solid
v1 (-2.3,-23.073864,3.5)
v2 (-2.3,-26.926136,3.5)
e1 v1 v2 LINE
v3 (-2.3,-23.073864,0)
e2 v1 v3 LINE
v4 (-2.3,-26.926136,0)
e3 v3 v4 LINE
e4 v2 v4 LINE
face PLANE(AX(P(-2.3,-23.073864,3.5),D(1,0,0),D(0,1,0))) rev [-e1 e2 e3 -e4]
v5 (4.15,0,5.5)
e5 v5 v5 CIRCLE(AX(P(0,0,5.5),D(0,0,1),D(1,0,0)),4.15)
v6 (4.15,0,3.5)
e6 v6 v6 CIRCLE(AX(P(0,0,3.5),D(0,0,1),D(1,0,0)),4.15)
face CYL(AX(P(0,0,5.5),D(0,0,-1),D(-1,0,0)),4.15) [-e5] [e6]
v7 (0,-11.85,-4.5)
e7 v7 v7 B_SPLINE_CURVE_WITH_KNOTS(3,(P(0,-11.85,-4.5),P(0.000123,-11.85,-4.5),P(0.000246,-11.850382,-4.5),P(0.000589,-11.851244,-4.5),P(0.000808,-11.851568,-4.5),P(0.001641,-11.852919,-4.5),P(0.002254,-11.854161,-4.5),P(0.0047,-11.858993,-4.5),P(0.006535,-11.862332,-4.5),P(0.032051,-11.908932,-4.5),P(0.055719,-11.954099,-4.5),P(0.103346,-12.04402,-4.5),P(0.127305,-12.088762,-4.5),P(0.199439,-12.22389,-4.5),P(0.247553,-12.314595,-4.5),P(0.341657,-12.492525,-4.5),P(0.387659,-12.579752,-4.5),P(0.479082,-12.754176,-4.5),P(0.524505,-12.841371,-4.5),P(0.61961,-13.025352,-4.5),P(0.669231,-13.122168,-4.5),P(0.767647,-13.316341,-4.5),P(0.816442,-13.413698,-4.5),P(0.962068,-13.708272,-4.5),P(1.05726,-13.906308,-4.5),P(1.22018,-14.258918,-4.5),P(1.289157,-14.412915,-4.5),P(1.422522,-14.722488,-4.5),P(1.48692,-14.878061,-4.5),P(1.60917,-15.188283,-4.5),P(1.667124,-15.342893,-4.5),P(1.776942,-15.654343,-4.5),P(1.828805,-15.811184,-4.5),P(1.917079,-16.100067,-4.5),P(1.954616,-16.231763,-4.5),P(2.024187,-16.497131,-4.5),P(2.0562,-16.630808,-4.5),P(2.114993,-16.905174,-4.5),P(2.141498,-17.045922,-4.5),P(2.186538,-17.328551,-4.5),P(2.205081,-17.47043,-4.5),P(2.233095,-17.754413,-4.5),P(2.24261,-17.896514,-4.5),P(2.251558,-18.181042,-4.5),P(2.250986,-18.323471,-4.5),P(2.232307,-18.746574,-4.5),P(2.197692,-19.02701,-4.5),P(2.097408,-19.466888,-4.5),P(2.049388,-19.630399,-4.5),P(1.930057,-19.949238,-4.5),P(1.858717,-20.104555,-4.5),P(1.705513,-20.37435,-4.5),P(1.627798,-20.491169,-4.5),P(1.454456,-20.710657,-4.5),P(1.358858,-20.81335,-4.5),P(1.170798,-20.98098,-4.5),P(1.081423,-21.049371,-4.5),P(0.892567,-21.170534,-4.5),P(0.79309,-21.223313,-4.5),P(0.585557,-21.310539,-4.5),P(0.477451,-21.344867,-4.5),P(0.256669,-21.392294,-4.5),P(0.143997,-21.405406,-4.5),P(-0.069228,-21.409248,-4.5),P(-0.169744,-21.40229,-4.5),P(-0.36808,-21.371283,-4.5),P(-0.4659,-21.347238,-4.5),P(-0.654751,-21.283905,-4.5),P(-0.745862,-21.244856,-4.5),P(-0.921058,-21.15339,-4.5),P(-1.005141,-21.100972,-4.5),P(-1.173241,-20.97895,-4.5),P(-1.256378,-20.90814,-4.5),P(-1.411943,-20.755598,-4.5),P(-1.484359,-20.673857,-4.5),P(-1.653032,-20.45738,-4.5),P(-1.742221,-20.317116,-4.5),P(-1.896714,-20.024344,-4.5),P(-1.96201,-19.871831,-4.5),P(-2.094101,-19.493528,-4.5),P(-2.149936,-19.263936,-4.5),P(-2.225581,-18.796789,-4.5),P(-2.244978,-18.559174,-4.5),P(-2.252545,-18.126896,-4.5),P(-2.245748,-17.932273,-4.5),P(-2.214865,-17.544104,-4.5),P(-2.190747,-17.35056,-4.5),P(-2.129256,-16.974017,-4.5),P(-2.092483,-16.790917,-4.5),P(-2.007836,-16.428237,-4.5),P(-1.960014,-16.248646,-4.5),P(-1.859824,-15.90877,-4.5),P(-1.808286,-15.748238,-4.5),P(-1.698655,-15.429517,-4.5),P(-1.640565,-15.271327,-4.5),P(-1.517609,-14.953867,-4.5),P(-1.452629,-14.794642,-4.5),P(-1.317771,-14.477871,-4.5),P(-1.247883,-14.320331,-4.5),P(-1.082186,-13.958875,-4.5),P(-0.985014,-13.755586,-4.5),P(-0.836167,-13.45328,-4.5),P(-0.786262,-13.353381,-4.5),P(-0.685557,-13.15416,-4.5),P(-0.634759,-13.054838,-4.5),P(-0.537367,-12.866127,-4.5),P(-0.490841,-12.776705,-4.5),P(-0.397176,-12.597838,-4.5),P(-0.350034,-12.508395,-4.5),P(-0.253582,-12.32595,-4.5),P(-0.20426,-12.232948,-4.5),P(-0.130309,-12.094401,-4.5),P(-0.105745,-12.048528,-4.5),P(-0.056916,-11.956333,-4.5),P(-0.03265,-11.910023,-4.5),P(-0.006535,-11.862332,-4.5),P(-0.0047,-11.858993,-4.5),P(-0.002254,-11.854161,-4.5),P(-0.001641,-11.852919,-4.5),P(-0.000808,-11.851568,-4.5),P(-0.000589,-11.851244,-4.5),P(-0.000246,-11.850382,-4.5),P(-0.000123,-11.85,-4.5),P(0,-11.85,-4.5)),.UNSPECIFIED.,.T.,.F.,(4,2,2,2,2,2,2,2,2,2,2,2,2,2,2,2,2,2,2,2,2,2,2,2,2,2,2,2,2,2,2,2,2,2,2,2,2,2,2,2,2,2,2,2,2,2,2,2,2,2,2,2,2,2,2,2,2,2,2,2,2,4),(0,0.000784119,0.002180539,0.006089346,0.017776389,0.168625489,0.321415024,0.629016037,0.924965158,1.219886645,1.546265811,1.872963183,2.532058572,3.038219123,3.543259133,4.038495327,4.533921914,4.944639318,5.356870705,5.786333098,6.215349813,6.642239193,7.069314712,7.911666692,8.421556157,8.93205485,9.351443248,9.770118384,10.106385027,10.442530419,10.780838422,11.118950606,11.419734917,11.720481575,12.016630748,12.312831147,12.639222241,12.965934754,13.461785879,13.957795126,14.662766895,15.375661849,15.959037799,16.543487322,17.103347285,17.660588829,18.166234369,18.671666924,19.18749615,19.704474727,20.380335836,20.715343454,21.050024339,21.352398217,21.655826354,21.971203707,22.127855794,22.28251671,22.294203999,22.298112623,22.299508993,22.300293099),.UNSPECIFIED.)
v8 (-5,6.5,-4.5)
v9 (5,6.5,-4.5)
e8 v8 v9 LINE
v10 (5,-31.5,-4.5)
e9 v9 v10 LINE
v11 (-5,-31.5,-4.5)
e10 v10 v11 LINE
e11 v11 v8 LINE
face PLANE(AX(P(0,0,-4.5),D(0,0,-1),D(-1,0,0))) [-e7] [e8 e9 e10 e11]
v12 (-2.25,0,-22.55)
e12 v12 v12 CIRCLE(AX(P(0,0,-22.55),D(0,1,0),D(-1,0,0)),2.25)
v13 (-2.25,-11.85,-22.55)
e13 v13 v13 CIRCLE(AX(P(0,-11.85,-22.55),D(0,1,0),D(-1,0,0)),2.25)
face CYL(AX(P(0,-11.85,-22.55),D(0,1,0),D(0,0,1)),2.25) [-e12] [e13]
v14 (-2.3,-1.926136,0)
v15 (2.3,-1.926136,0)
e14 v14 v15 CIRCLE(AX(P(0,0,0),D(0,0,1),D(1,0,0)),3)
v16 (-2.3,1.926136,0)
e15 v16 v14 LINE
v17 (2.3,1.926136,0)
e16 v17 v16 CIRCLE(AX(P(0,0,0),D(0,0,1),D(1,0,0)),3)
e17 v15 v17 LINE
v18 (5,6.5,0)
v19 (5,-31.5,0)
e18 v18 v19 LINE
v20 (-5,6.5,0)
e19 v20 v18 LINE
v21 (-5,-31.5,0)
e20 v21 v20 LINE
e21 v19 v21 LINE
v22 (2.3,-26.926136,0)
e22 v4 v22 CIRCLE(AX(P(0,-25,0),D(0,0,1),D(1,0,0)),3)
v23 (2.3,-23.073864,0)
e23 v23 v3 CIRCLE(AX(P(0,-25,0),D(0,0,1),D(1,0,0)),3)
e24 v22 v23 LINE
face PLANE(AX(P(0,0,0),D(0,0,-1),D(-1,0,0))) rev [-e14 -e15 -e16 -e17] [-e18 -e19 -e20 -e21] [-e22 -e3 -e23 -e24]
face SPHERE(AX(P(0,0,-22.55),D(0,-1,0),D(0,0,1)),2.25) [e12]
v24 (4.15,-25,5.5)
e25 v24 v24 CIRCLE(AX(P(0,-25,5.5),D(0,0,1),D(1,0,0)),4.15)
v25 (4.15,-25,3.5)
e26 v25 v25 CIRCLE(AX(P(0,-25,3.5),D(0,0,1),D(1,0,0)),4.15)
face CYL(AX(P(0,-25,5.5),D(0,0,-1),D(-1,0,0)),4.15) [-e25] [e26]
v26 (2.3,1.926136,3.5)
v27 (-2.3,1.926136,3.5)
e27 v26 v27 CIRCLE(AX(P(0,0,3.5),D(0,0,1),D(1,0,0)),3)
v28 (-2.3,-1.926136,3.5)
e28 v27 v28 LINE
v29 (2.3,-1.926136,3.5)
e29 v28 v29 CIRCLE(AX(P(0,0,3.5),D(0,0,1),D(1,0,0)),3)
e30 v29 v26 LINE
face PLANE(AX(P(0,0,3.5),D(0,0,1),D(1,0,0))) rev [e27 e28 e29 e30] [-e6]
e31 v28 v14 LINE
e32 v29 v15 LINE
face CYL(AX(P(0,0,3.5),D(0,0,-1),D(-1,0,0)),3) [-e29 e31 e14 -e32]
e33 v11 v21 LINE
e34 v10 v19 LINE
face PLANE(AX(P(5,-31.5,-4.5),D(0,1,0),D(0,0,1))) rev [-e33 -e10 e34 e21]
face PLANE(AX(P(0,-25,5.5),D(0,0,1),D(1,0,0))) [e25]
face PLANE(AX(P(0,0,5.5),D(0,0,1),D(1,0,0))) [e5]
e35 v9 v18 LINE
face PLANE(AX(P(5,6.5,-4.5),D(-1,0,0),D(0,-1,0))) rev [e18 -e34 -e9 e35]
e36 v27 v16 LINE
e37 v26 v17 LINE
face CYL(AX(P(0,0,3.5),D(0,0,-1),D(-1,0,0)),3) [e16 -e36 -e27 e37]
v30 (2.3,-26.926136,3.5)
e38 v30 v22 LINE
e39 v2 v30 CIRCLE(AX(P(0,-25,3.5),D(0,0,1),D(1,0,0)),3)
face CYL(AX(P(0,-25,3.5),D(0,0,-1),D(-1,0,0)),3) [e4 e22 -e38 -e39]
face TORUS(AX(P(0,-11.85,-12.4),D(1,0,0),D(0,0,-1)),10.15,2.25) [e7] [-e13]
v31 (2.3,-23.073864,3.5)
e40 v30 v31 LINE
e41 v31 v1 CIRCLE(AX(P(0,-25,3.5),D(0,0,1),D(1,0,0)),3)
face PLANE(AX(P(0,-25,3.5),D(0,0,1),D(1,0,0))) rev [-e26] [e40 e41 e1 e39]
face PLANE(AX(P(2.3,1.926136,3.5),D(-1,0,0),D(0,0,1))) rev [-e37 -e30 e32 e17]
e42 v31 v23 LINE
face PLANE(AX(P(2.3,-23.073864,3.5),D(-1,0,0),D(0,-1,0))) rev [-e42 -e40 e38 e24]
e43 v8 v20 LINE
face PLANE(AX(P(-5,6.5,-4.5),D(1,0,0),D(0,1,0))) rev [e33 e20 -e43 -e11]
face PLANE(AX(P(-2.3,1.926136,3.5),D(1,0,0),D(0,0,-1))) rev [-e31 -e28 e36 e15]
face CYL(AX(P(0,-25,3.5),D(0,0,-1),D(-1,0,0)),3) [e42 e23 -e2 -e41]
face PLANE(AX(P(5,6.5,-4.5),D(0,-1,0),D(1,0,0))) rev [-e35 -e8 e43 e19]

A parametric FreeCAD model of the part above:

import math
import FreeCAD as App
import Part
import Sketcher

doc = App.newDocument("Part")
body = doc.addObject("PartDesign::Body", "Body")

sketch1 = body.newObject("Sketcher::SketchObject", "Sketch")
sketch1.AttachmentSupport = (doc.getObject("XY_Plane"), [""])
sketch1.MapMode = "FlatFace"
sketch1.addGeometry(Part.LineSegment(App.Vector(-2.3, 1.9, 0), App.Vector(-2.3, -1.9, 0)), False)
sketch1.addGeometry(Part.ArcOfCircle(Part.Circle(App.Vector(0, 0, 0), App.Vector(0, 0, 1), 3), math.radians(-140), math.radians(-40)), False)
sketch1.addGeometry(Part.LineSegment(App.Vector(2.3, -1.9, 0), App.Vector(2.3, 1.9, 0)), False)
sketch1.addGeometry(Part.ArcOfCircle(Part.Circle(App.Vector(0, 0, 0), App.Vector(0, 0, 1), 3), math.radians(40), math.radians(140)), False)
sketch1.addConstraint(Sketcher.Constraint("Coincident", 0, 2, 1, 1))
sketch1.addConstraint(Sketcher.Constraint("Coincident", 1, 2, 2, 1))
sketch1.addConstraint(Sketcher.Constraint("Coincident", 2, 2, 3, 1))
sketch1.addConstraint(Sketcher.Constraint("Coincident", 3, 2, 0, 1))
sketch1.addConstraint(Sketcher.Constraint("Vertical", 0))
sketch1.addConstraint(Sketcher.Constraint("Vertical", 2))
sketch1.addConstraint(Sketcher.Constraint("Coincident", 1, 3, -1, 1))
sketch1.addConstraint(Sketcher.Constraint("Coincident", 3, 3, -1, 1))
sketch1.addConstraint(Sketcher.Constraint("Equal", 1, 3))
sketch1.addConstraint(Sketcher.Constraint("Horizontal", 0, 2, 1, 2))
sketch1.addConstraint(Sketcher.Constraint("Radius", 1, 3.0))
sketch1.addConstraint(Sketcher.Constraint("DistanceX", 0, 2, -1, 1, 2.3))
pad1 = body.newObject("PartDesign::Pad", "Pad")
pad1.Profile = sketch1
pad1.Length = 3.5
body2 = doc.addObject("PartDesign::Body", "Body001")

sketch2 = body2.newObject("Sketcher::SketchObject", "Sketch001")
sketch2.AttachmentSupport = (doc.getObject("XY_Plane001"), [""])
sketch2.MapMode = "FlatFace"
sketch2.addGeometry(Part.LineSegment(App.Vector(-2.3, -23.1, 0), App.Vector(-2.3, -26.9, 0)), False)
sketch2.addGeometry(Part.ArcOfCircle(Part.Circle(App.Vector(0, -25, 0), App.Vector(0, 0, 1), 3), math.radians(-140), math.radians(-40)), False)
sketch2.addGeometry(Part.LineSegment(App.Vector(2.3, -26.9, 0), App.Vector(2.3, -23.1, 0)), False)
sketch2.addGeometry(Part.ArcOfCircle(Part.Circle(App.Vector(0, -25, 0), App.Vector(0, 0, 1), 3), math.radians(40), math.radians(140)), False)
sketch2.addConstraint(Sketcher.Constraint("Coincident", 0, 2, 1, 1))
sketch2.addConstraint(Sketcher.Constraint("Coincident", 1, 2, 2, 1))
sketch2.addConstraint(Sketcher.Constraint("Coincident", 2, 2, 3, 1))
sketch2.addConstraint(Sketcher.Constraint("Coincident", 3, 2, 0, 1))
sketch2.addConstraint(Sketcher.Constraint("Vertical", 0))
sketch2.addConstraint(Sketcher.Constraint("Vertical", 2))
sketch2.addConstraint(Sketcher.Constraint("Coincident", 3, 3, 1, 3))
sketch2.addConstraint(Sketcher.Constraint("Equal", 1, 3))
sketch2.addConstraint(Sketcher.Constraint("Symmetric", 0, 2, 1, 2, -2))
sketch2.addConstraint(Sketcher.Constraint("Radius", 1, 3.0))
sketch2.addConstraint(Sketcher.Constraint("DistanceY", 1, 3, -1, 1, 25.0))
sketch2.addConstraint(Sketcher.Constraint("DistanceX", 0, 2, -1, 1, 2.3))
pad2 = body2.newObject("PartDesign::Pad", "Pad001")
pad2.Profile = sketch2
pad2.Length = 3.5
body.AllowCompound = True
doc.recompute()

boolean = body.newObject("PartDesign::Boolean", "Boolean")
boolean.Type = "Fuse"
boolean.addObjects([body2])

sketch3 = body.newObject("Sketcher::SketchObject", "Sketch002")
sketch3.AttachmentSupport = (doc.getObject("XY_Plane"), [""])
sketch3.MapMode = "FlatFace"
sketch3.AttachmentOffset = App.Placement(App.Vector(0, 0, 3.5), App.Rotation())
sketch3.addGeometry(Part.Circle(App.Vector(0, 0, 0), App.Vector(0, 0, 1), 4.2), False)
sketch3.addGeometry(Part.Circle(App.Vector(0, -25, 0), App.Vector(0, 0, 1), 4.2), False)
sketch3.addConstraint(Sketcher.Constraint("Coincident", 0, 3, -1, 1))
sketch3.addConstraint(Sketcher.Constraint("Equal", 0, 1))
sketch3.addConstraint(Sketcher.Constraint("PointOnObject", 1, 3, -2))
sketch3.addConstraint(Sketcher.Constraint("Diameter", 0, 8.3))
sketch3.addConstraint(Sketcher.Constraint("DistanceY", 1, 3, -1, 1, 25.0))
pad3 = body.newObject("PartDesign::Pad", "Pad002")
pad3.Profile = sketch3
pad3.Length = 2

sketch4 = body.newObject("Sketcher::SketchObject", "Sketch003")
sketch4.AttachmentSupport = (doc.getObject("XY_Plane"), [""])
sketch4.MapMode = "FlatFace"
sketch4.addGeometry(Part.LineSegment(App.Vector(5, 6, 0), App.Vector(5, -32, 0)), False)
sketch4.addGeometry(Part.LineSegment(App.Vector(5, -32, 0), App.Vector(-5, -32, 0)), False)
sketch4.addGeometry(Part.LineSegment(App.Vector(-5, -32, 0), App.Vector(-5, 6, 0)), False)
sketch4.addGeometry(Part.LineSegment(App.Vector(-5, 6, 0), App.Vector(5, 6, 0)), False)
sketch4.addConstraint(Sketcher.Constraint("Coincident", 0, 2, 1, 1))
sketch4.addConstraint(Sketcher.Constraint("Coincident", 1, 2, 2, 1))
sketch4.addConstraint(Sketcher.Constraint("Coincident", 2, 2, 3, 1))
sketch4.addConstraint(Sketcher.Constraint("Coincident", 3, 2, 0, 1))
sketch4.addConstraint(Sketcher.Constraint("Vertical", 0))
sketch4.addConstraint(Sketcher.Constraint("Horizontal", 1))
sketch4.addConstraint(Sketcher.Constraint("Vertical", 2))
sketch4.addConstraint(Sketcher.Constraint("Horizontal", 3))
sketch4.addConstraint(Sketcher.Constraint("DistanceX", 1, 2, 1, 1, 10.0))
sketch4.addConstraint(Sketcher.Constraint("DistanceY", 0, 2, 0, 1, 38.0))
sketch4.addConstraint(Sketcher.Constraint("DistanceX", -1, 1, 0, 2, 5.0))
sketch4.addConstraint(Sketcher.Constraint("DistanceY", 0, 2, -1, 1, 31.5))
pad4 = body.newObject("PartDesign::Pad", "Pad003")
pad4.Profile = sketch4
pad4.Length = 4.5
pad4.Reversed = True

sketch5 = body.newObject("Sketcher::SketchObject", "Sketch004")
sketch5.AttachmentSupport = (doc.getObject("XZ_Plane"), [""])
sketch5.MapMode = "FlatFace"
sketch5.addGeometry(Part.Circle(App.Vector(0, -22.6, 0), App.Vector(0, 0, 1), 2.2), False)
sketch5.addConstraint(Sketcher.Constraint("PointOnObject", 0, 3, -2))
sketch5.addConstraint(Sketcher.Constraint("Diameter", 0, 4.5))
sketch5.addConstraint(Sketcher.Constraint("DistanceY", 0, 3, -1, 1, 22.55))

sketch6 = body.newObject("Sketcher::SketchObject", "Sketch005")
sketch6.AttachmentSupport = (doc.getObject("YZ_Plane"), [""])
sketch6.MapMode = "FlatFace"
sketch6.addGeometry(Part.LineSegment(App.Vector(0, -2, 0), App.Vector(-12, -2, 0)), False)
sketch6.addGeometry(Part.ArcOfCircle(Part.Circle(App.Vector(-12, -12, 0), App.Vector(0, 0, 1), 10), math.radians(90), math.radians(270)), False)
sketch6.addGeometry(Part.LineSegment(App.Vector(-12, -23, 0), App.Vector(0, -23, 0)), False)
sketch6.addConstraint(Sketcher.Constraint("Tangent", 0, 2, 1, 1))
sketch6.addConstraint(Sketcher.Constraint("Tangent", 1, 2, 2, 1))
sketch6.addConstraint(Sketcher.Constraint("Horizontal", 0))
sketch6.addConstraint(Sketcher.Constraint("Horizontal", 2))
sketch6.addConstraint(Sketcher.Constraint("PointOnObject", 0, 1, -2))
sketch6.addConstraint(Sketcher.Constraint("PointOnObject", 2, 2, -2))
sketch6.addConstraint(Sketcher.Constraint("Radius", 1, 10.15))
sketch6.addConstraint(Sketcher.Constraint("DistanceX", 0, 2, 0, 1, 11.85))
sketch6.addConstraint(Sketcher.Constraint("DistanceY", 1, 3, -1, 1, 12.4))
doc.recompute()

additivepipe = body.newObject("PartDesign::AdditivePipe", "AdditivePipe")
additivepipe.Profile = sketch5
additivepipe.Spine = (sketch6, ["Edge1", "Edge2", "Edge3"])

sketch7 = body.newObject("Sketcher::SketchObject", "Sketch006")
sketch7.AttachmentSupport = (doc.getObject("YZ_Plane"), [""])
sketch7.MapMode = "FlatFace"
sketch7.addGeometry(Part.LineSegment(App.Vector(0, -22.6, 0), App.Vector(2.2, -22.6, 0)), False)
sketch7.addGeometry(Part.ArcOfCircle(Part.Circle(App.Vector(0, -22.5, 0), App.Vector(0, 0, 1), 2.2), math.radians(0), math.radians(90)), False)
sketch7.addGeometry(Part.LineSegment(App.Vector(0, -20.3, 0), App.Vector(0, -22.6, 0)), False)
sketch7.addGeometry(Part.LineSegment(App.Vector(0, -22.6, 0), App.Vector(2.2, -22.6, 0)), True)
sketch7.addConstraint(Sketcher.Constraint("Coincident", 0, 2, 1, 1))
sketch7.addConstraint(Sketcher.Constraint("Coincident", 1, 2, 2, 1))
sketch7.addConstraint(Sketcher.Constraint("Coincident", 2, 2, 0, 1))
sketch7.addConstraint(Sketcher.Constraint("Horizontal", 0))
sketch7.addConstraint(Sketcher.Constraint("Vertical", 2))
sketch7.addConstraint(Sketcher.Constraint("Horizontal", 3))
sketch7.addConstraint(Sketcher.Constraint("Coincident", 2, 2, 1, 3))
sketch7.addConstraint(Sketcher.Constraint("Coincident", 3, 1, 1, 3))
sketch7.addConstraint(Sketcher.Constraint("PointOnObject", 1, 3, -2))
sketch7.addConstraint(Sketcher.Constraint("Equal", 0, 3))
sketch7.addConstraint(Sketcher.Constraint("Radius", 1, 2.25))
sketch7.addConstraint(Sketcher.Constraint("DistanceY", 1, 2, -1, 1, 20.3))
revolution = body.newObject("PartDesign::Revolution", "Revolution")
revolution.Profile = sketch7
revolution.ReferenceAxis = (sketch7, ["Axis0"])
revolution.Angle = 360

doc.recompute()
